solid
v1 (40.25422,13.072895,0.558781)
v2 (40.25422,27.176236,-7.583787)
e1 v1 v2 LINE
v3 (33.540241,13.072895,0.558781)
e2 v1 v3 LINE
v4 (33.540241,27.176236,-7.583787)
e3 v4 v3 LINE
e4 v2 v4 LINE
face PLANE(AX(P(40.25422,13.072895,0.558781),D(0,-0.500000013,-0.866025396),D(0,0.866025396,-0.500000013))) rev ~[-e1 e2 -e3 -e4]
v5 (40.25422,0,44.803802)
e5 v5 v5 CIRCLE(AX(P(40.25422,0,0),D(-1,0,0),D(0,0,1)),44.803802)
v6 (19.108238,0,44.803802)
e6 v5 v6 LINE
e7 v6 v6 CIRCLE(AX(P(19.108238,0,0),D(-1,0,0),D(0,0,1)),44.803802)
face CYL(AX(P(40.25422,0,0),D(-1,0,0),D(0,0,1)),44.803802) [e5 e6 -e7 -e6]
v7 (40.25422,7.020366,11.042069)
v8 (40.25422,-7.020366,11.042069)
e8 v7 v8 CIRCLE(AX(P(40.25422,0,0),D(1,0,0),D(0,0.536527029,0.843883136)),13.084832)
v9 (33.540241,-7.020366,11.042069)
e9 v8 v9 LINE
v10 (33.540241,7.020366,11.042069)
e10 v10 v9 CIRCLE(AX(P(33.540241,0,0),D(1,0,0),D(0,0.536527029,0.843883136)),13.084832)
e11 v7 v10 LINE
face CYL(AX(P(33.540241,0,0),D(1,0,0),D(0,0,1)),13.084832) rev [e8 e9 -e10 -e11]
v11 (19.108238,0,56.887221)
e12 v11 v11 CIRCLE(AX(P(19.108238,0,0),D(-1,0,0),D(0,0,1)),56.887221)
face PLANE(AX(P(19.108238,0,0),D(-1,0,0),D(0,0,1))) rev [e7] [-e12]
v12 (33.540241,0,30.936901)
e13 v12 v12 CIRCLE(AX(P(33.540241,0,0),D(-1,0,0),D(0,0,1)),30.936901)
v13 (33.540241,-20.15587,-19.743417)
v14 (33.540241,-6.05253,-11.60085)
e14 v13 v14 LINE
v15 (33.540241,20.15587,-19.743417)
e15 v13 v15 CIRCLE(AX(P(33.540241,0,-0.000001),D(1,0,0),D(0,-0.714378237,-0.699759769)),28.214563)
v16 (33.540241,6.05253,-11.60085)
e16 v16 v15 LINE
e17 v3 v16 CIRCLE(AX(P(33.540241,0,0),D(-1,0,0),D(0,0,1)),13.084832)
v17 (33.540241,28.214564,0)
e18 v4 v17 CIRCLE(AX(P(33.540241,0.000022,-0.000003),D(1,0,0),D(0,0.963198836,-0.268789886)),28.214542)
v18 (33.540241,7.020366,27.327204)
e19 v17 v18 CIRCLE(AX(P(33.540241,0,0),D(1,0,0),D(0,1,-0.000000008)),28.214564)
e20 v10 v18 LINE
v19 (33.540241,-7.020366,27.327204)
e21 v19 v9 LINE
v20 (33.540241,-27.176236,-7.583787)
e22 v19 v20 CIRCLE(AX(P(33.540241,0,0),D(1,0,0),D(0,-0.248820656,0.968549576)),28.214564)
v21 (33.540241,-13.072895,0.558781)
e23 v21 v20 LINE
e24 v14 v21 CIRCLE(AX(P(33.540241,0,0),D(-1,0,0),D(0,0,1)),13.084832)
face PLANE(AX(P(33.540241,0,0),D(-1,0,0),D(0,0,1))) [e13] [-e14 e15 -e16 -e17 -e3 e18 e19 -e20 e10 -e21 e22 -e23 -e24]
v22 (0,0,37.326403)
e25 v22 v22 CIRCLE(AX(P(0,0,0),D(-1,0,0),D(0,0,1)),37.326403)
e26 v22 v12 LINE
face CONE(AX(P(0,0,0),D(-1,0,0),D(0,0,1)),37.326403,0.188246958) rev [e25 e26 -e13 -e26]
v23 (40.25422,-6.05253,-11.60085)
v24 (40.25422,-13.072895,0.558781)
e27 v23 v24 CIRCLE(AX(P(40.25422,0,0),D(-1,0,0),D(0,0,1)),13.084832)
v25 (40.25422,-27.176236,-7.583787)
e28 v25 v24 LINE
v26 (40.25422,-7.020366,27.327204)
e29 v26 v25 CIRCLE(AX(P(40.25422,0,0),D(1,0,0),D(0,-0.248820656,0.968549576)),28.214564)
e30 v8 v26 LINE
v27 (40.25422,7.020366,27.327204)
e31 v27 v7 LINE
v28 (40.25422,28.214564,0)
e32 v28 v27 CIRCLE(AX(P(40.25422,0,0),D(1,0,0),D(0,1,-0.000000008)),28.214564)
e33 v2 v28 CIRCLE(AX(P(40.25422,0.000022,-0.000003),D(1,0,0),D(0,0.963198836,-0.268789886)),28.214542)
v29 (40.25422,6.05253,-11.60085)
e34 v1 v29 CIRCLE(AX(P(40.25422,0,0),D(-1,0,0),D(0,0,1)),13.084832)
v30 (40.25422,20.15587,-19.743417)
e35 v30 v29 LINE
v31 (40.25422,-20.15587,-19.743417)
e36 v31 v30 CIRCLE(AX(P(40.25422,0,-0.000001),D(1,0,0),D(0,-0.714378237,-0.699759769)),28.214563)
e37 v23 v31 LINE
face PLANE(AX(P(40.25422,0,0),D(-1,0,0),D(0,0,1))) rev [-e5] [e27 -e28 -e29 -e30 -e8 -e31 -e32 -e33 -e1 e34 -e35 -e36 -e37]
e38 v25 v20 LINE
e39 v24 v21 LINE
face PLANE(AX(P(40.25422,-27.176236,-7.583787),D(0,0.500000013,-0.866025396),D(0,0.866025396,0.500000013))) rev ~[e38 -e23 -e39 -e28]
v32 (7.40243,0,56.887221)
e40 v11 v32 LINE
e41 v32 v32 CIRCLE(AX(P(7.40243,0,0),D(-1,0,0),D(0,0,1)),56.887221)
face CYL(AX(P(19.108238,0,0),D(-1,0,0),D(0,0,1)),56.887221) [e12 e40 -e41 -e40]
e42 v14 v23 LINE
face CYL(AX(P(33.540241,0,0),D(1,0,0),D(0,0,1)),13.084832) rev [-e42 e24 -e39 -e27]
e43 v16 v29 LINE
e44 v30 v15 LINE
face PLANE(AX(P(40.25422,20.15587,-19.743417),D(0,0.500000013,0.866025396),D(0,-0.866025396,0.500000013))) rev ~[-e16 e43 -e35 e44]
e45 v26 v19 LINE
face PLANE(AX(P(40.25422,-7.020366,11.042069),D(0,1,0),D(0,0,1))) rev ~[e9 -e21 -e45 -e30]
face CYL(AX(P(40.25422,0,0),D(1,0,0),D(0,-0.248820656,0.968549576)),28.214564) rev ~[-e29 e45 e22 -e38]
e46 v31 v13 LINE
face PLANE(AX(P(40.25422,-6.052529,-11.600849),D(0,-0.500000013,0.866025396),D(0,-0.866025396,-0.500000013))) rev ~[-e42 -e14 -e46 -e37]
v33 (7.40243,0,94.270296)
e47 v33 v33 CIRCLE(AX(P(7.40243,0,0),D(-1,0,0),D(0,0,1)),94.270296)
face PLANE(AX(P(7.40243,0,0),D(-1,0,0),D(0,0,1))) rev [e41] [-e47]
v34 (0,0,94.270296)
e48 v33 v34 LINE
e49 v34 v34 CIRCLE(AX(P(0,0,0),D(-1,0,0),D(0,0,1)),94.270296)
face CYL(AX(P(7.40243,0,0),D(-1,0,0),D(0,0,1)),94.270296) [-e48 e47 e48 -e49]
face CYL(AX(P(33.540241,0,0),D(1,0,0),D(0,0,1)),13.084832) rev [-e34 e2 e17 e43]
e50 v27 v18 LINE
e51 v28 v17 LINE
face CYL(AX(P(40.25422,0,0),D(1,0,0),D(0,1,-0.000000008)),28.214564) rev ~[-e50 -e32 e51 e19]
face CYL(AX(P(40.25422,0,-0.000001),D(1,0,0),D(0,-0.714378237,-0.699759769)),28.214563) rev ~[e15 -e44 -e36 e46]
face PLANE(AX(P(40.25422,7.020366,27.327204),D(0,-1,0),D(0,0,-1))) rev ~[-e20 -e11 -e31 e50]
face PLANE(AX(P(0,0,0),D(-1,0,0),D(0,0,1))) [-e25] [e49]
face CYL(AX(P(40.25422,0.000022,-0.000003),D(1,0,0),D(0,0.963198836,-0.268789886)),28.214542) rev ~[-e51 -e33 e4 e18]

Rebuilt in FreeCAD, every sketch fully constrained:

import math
import FreeCAD as App
import Part
import Sketcher
Q = App.Units.Quantity

doc = App.newDocument("Part")
body = doc.addObject("PartDesign::Body", "Body")

# Sketch on XZ plane
sketch1 = body.newObject("Sketcher::SketchObject", "Sketch")
sketch1.AttachmentSupport = (doc.getObject("XZ_Plane"), [""])
sketch1.MapMode = "FlatFace"
sketch1.addGeometry([
    Part.LineSegment(App.Vector(7, 94, 0), App.Vector(0, 94, 0)),  # 0
    Part.LineSegment(App.Vector(0, 94, 0), App.Vector(0, 37, 0)),  # 1
    Part.LineSegment(App.Vector(0, 37, 0), App.Vector(34, 31, 0)),  # 2
    Part.LineSegment(App.Vector(34, 31, 0), App.Vector(34, 13, 0)),  # 3
    Part.LineSegment(App.Vector(34, 13, 0), App.Vector(40, 13, 0)),  # 4
    Part.LineSegment(App.Vector(40, 13, 0), App.Vector(40, 45, 0)),  # 5
    Part.LineSegment(App.Vector(40, 45, 0), App.Vector(19, 45, 0)),  # 6
    Part.LineSegment(App.Vector(19, 45, 0), App.Vector(19, 57, 0)),  # 7
    Part.LineSegment(App.Vector(19, 57, 0), App.Vector(7, 57, 0)),  # 8
    Part.LineSegment(App.Vector(7, 57, 0), App.Vector(7, 94, 0)),  # 9
], False)
sketch1.addConstraint([
    Sketcher.Constraint("Coincident", 0, 2, 1, 1),
    Sketcher.Constraint("Coincident", 1, 2, 2, 1),
    Sketcher.Constraint("Coincident", 2, 2, 3, 1),
    Sketcher.Constraint("Coincident", 3, 2, 4, 1),
    Sketcher.Constraint("Coincident", 4, 2, 5, 1),
    Sketcher.Constraint("Coincident", 5, 2, 6, 1),
    Sketcher.Constraint("Coincident", 6, 2, 7, 1),
    Sketcher.Constraint("Coincident", 7, 2, 8, 1),
    Sketcher.Constraint("Coincident", 8, 2, 9, 1),
    Sketcher.Constraint("Coincident", 9, 2, 0, 1),
    Sketcher.Constraint("Horizontal", 0),
    Sketcher.Constraint("Vertical", 1),
    Sketcher.Constraint("Vertical", 3),
    Sketcher.Constraint("Horizontal", 4),
    Sketcher.Constraint("Vertical", 5),
    Sketcher.Constraint("Horizontal", 6),
    Sketcher.Constraint("Vertical", 7),
    Sketcher.Constraint("Horizontal", 8),
    Sketcher.Constraint("Vertical", 9),
    Sketcher.Constraint("PointOnObject", 0, 2, -2),
    Sketcher.Constraint("DistanceX", 0, 2, 0, 1, Q("7.40243 mm")),
    Sketcher.Constraint("DistanceX", 4, 1, 4, 2, Q("6.713979 mm")),
    Sketcher.Constraint("DistanceX", 6, 2, 6, 1, Q("21.145982 mm")),
    Sketcher.Constraint("DistanceX", 8, 2, 8, 1, Q("11.705808 mm")),
    Sketcher.Constraint("DistanceY", 3, 2, 3, 1, Q("17.852069 mm")),
    Sketcher.Constraint("DistanceY", 5, 1, 5, 2, Q("31.71897 mm")),
    Sketcher.Constraint("DistanceY", 7, 1, 7, 2, Q("12.083419 mm")),
    Sketcher.Constraint("DistanceY", -1, 1, 2, 2, Q("30.936901 mm")),
    Sketcher.Constraint("DistanceY", 1, 2, 5, 2, Q("7.477399 mm")),
    Sketcher.Constraint("DistanceY", 1, 2, 1, 1, Q("56.943893 mm")),
])
revolution = body.newObject("PartDesign::Revolution", "Revolution")
revolution.Profile = sketch1
revolution.ReferenceAxis = (sketch1, ["H_Axis"])
revolution.Angle = 360

# Sketch on YZ plane
sketch2 = body.newObject("Sketcher::SketchObject", "Sketch001")
sketch2.AttachmentSupport = (doc.getObject("YZ_Plane"), [""])
sketch2.MapMode = "FlatFace"
sketch2.AttachmentOffset = App.Placement(App.Vector(0, 0, 40.25422), App.Rotation())
sketch2.addGeometry([
    Part.LineSegment(App.Vector(-7.020366, 11.042069, 0), App.Vector(-7.020366, 27.327204, 0)),  # 0
    Part.ArcOfCircle(Part.Circle(App.Vector(0, 0, 0), App.Vector(0, 0, 1), 28.214564), math.radians(104.407736), math.radians(195.592264)),  # 1
    Part.LineSegment(App.Vector(-27.176236, -7.583787, 0), App.Vector(-13.072895, 0.558781, 0)),  # 2
    Part.ArcOfCircle(Part.Circle(App.Vector(-0.000002, 0.000001, 0), App.Vector(0, 0, 1), 13.08483), math.radians(122.447526), math.radians(177.552475)),  # 3
    Part.LineSegment(App.Vector(-6.052529, -11.600849, 0), App.Vector(-20.15587, -19.743417, 0)),  # 4
    Part.ArcOfCircle(Part.Circle(App.Vector(0, -0.000001, 0), App.Vector(0, 0, 1), 28.214563), math.radians(-135.592267), math.radians(-44.407733)),  # 5
    Part.LineSegment(App.Vector(20.15587, -19.743417, 0), App.Vector(6.052529, -11.600849, 0)),  # 6
    Part.ArcOfCircle(Part.Circle(App.Vector(0, -0.000008, 0), App.Vector(0, 0, 1), 13.084824), math.radians(-117.552487), math.radians(-62.447513)),  # 7
    Part.ArcOfCircle(Part.Circle(App.Vector(0, 0, 0), App.Vector(0, 0, 1), 28.214564), math.radians(0), math.radians(75.592266)),  # 8
    Part.LineSegment(App.Vector(7.020366, 27.327204, 0), App.Vector(7.020366, 11.042069, 0)),  # 9
    Part.ArcOfCircle(Part.Circle(App.Vector(0.000002, 0.000001, 0), App.Vector(0, 0, 1), 13.08483), math.radians(2.447525), math.radians(57.552474)),  # 10
    Part.LineSegment(App.Vector(13.072895, 0.558781, 0), App.Vector(27.176236, -7.583787, 0)),  # 11
    Part.ArcOfCircle(Part.Circle(App.Vector(0.000022, -0.000003, 0), App.Vector(0, 0, 1), 28.214542), math.radians(-15.592271), math.radians(0.000007)),  # 12
], False)
sketch2.addConstraint([
    Sketcher.Constraint("Coincident", 0, 2, 1, 1),
    Sketcher.Constraint("Coincident", 1, 2, 2, 1),
    Sketcher.Constraint("Coincident", 2, 2, 3, 2),
    Sketcher.Constraint("Coincident", 3, 1, 0, 1),
    Sketcher.Constraint("Coincident", 4, 2, 5, 1),
    Sketcher.Constraint("Coincident", 5, 2, 6, 1),
    Sketcher.Constraint("Coincident", 6, 2, 7, 2),
    Sketcher.Constraint("Coincident", 7, 1, 4, 1),
    Sketcher.Constraint("Coincident", 8, 2, 9, 1),
    Sketcher.Constraint("Coincident", 9, 2, 10, 2),
    Sketcher.Constraint("Coincident", 10, 1, 11, 1),
    Sketcher.Constraint("Coincident", 11, 2, 12, 1),
    Sketcher.Constraint("Coincident", 12, 2, 8, 1),
    Sketcher.Constraint("Vertical", 0),
    Sketcher.Constraint("Vertical", 9),
    Sketcher.Constraint("Coincident", 1, 3, -1, 1),
    Sketcher.Constraint("Coincident", 3, 3, -1, 1),
    Sketcher.Constraint("Coincident", 5, 3, -1, 1),
    Sketcher.Constraint("Coincident", 7, 3, -1, 1),
    Sketcher.Constraint("Coincident", 8, 3, -1, 1),
    Sketcher.Constraint("Coincident", 10, 3, -1, 1),
    Sketcher.Constraint("PointOnObject", 12, 2, -1),
    Sketcher.Constraint("Radius", 3, Q("13.08483 mm")),
    Sketcher.Constraint("Radius", 10, Q("13.08483 mm")),
    Sketcher.Constraint("Radius", 1, Q("28.214564 mm")),
    Sketcher.Constraint("Radius", 5, Q("28.214563 mm")),
    Sketcher.Constraint("Radius", 7, Q("13.084824 mm")),
    Sketcher.Constraint("Radius", 8, Q("28.214564 mm")),
    Sketcher.Constraint("Radius", 12, Q("28.214542 mm")),
    Sketcher.Constraint("DistanceY", 4, 2, 2, 2, Q("20.302198 mm")),
    Sketcher.Constraint("DistanceY", 0, 1, 0, 2, Q("16.285135 mm")),
    Sketcher.Constraint("DistanceY", 9, 2, 9, 1, Q("16.285135 mm")),
    Sketcher.Constraint("DistanceY", -1, 1, 2, 2, Q("0.558781 mm")),
    Sketcher.Constraint("DistanceX", -1, 1, 5, 2, Q("20.15587 mm")),
    Sketcher.Constraint("DistanceX", -1, 1, 6, 2, Q("6.052529 mm")),
    Sketcher.Constraint("DistanceX", 7, 1, -1, 1, Q("6.052529 mm")),
    Sketcher.Constraint("DistanceY", -1, 1, 10, 1, Q("0.558781 mm")),
    Sketcher.Constraint("DistanceY", 1, 2, 7, 3, Q("7.583779 mm")),
    Sketcher.Constraint("DistanceY", 5, 2, 11, 2, Q("12.15963 mm")),
    Sketcher.Constraint("DistanceX", 10, 1, 11, 2, Q("14.103341 mm")),
])
pocket1 = body.newObject("PartDesign::Pocket", "Pocket")
pocket1.Profile = sketch2
pocket1.Type = "ThroughAll"

doc.recompute()
